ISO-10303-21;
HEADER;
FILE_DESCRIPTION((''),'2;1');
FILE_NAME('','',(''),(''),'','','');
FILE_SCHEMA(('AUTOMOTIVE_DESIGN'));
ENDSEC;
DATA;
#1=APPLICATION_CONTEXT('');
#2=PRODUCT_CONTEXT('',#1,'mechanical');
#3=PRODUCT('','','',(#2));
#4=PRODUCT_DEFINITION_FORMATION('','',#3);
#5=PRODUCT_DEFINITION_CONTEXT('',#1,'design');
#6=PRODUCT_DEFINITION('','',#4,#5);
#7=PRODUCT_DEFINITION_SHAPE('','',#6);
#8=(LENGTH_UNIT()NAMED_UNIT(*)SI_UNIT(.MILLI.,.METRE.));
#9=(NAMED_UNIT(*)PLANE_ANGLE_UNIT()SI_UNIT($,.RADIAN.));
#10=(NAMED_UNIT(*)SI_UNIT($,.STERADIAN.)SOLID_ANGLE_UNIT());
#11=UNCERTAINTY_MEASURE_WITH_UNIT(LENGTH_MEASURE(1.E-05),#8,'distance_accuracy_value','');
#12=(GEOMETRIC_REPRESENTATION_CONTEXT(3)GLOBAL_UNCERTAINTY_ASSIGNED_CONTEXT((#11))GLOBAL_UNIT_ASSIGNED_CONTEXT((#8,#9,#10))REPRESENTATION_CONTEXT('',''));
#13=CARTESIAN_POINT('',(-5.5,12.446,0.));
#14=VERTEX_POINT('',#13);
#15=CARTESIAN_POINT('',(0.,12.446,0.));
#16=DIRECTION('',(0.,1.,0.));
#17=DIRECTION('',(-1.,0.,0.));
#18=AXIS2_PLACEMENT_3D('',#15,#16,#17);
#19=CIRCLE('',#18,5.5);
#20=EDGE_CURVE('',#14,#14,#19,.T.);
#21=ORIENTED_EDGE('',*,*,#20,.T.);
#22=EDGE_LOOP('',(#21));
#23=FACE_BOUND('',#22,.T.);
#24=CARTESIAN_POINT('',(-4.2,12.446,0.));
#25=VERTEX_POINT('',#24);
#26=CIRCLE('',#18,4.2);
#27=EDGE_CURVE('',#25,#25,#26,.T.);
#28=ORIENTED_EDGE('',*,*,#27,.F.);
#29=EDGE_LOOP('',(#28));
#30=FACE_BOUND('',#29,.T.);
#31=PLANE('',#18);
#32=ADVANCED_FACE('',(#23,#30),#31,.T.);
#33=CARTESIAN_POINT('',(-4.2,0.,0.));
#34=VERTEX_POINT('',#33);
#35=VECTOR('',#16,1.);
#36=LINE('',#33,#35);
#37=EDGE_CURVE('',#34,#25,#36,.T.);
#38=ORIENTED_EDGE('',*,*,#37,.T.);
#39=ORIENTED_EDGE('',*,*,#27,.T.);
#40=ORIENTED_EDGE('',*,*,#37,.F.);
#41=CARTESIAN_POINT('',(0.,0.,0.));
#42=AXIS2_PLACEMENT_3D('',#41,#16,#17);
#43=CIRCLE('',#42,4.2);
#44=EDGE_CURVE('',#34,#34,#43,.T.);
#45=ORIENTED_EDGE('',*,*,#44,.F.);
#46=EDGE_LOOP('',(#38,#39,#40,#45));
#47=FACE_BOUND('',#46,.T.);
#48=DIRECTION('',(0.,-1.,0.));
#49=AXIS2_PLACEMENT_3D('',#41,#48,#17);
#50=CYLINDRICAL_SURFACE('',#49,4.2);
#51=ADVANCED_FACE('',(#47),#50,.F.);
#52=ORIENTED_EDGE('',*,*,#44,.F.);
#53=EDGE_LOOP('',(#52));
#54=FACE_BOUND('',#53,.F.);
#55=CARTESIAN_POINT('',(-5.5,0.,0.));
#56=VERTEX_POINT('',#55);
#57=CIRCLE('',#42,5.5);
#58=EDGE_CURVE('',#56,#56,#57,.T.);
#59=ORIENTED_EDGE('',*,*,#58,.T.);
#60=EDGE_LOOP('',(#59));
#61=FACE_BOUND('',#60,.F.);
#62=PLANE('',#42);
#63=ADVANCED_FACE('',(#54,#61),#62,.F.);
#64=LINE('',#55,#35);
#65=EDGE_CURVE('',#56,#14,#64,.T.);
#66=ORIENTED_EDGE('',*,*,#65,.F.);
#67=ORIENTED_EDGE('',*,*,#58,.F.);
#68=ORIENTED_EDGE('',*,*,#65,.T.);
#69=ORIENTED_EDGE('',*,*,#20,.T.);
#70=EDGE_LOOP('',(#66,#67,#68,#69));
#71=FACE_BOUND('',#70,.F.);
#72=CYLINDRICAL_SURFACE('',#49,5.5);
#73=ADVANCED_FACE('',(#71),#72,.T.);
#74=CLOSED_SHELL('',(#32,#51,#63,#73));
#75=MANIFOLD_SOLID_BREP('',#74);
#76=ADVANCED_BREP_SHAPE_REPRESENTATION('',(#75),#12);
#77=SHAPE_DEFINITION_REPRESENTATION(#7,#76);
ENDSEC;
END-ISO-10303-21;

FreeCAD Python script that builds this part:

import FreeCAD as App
import Part
import Sketcher
from FreeCAD import Vector
Q = App.Units.Quantity

doc = App.newDocument("Part")
params = doc.addObject("Spreadsheet::Sheet", "Params")
for row, (alias, value) in enumerate([
    ("sketch1_diameter", "11 mm"),
    ("sketch1_diameter2", "8.4 mm"),
    ("pad1_length", "12.446 mm"),
], start=1):
    params.set(f"A{row}", alias)
    params.set(f"B{row}", "=" + value)
    params.setAlias(f"B{row}", alias)

body = doc.addObject("PartDesign::Body", "Body")

# Sketch on XZ plane
sketch1 = body.newObject("Sketcher::SketchObject", "Sketch")
sketch1.AttachmentSupport = (doc.getObject("XZ_Plane"), [""])
sketch1.MapMode = "FlatFace"
sketch1.addGeometry(Part.Circle(Vector(0, 0, 0), Vector(0, 0, 1), 5.5), False)
sketch1.addGeometry(Part.Circle(Vector(0, 0, 0), Vector(0, 0, 1), 4.2), False)
sketch1.addConstraint(Sketcher.Constraint("Coincident", 0, 3, -1, 1))
sketch1.addConstraint(Sketcher.Constraint("Coincident", 1, 3, -1, 1))
sketch1.addConstraint(Sketcher.Constraint("Diameter", 0, Q("11 mm")))
sketch1.addConstraint(Sketcher.Constraint("Diameter", 1, Q("8.4 mm")))
sketch1.setExpression("Constraints[2]", "Params.sketch1_diameter")
sketch1.setExpression("Constraints[3]", "Params.sketch1_diameter2")
pad1 = body.newObject("PartDesign::Pad", "Pad")
pad1.Profile = sketch1
pad1.setExpression("Length", "Params.pad1_length")
pad1.Reversed = True

doc.recompute()
